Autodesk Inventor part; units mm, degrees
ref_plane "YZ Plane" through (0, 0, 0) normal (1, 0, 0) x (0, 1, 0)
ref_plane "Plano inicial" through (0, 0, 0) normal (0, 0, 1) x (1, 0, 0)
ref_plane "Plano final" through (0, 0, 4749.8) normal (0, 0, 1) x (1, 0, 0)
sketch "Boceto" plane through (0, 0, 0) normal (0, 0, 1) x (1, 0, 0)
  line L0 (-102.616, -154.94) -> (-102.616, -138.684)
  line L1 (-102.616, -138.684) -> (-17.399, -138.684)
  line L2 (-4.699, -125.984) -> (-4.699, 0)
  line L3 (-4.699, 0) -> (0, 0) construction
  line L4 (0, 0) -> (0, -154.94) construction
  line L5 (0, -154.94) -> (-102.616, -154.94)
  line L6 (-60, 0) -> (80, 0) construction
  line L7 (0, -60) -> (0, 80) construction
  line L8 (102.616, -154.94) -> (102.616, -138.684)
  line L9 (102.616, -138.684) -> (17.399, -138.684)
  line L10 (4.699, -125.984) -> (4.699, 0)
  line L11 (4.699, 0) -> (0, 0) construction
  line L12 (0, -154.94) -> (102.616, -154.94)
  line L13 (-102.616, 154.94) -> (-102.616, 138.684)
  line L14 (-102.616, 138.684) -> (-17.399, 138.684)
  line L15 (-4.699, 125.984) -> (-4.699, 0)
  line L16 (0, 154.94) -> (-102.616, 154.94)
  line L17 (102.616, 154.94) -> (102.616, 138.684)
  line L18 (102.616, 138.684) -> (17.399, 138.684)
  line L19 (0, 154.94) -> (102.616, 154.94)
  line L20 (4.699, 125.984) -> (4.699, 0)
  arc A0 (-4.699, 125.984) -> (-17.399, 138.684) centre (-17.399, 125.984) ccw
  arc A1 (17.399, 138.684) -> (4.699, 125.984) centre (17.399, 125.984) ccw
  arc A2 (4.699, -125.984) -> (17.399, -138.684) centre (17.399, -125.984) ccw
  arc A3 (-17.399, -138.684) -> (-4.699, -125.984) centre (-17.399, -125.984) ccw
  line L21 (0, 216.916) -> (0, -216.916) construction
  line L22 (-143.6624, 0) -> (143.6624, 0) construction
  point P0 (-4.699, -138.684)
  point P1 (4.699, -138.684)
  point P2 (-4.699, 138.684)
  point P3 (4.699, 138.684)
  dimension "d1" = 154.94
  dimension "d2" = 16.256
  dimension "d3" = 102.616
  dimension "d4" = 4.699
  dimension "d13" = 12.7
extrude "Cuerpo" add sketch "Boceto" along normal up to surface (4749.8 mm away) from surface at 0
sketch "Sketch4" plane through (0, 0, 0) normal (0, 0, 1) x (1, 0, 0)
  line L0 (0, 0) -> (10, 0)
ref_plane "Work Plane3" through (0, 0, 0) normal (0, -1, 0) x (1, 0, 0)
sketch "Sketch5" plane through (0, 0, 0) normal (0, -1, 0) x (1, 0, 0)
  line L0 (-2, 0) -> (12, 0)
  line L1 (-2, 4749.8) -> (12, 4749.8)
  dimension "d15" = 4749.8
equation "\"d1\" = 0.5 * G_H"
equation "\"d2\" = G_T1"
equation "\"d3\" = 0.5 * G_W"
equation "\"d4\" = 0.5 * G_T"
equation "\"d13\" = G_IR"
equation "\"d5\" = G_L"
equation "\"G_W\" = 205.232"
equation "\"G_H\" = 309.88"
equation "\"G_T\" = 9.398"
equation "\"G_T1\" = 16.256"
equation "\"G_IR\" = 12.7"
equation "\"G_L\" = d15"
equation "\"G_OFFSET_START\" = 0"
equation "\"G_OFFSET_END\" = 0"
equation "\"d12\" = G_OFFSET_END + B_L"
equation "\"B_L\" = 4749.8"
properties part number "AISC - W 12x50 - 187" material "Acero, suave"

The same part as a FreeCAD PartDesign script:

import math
import FreeCAD as App
import Part
import Sketcher
from FreeCAD import Vector
Q = App.Units.Quantity

doc = App.newDocument("Part")
body = doc.addObject("PartDesign::Body", "Body")

# Sketch on XY plane
sketch1 = body.newObject("Sketcher::SketchObject", "Sketch")
sketch1.AttachmentSupport = (doc.getObject("XY_Plane"), [""])
sketch1.MapMode = "FlatFace"
sketch1.addGeometry([
    Part.LineSegment(Vector(-103, -139, 0), Vector(-103, -155, 0)),  # 0
    Part.LineSegment(Vector(-103, -155, 0), Vector(103, -155, 0)),  # 1
    Part.LineSegment(Vector(103, -155, 0), Vector(103, -139, 0)),  # 2
    Part.LineSegment(Vector(103, -139, 0), Vector(17, -139, 0)),  # 3
    Part.ArcOfCircle(Part.Circle(Vector(17, -126, 0), Vector(0, 0, 1), 13), math.radians(180), math.radians(270)),  # 4
    Part.LineSegment(Vector(5, -126, 0), Vector(5, 126, 0)),  # 5
    Part.ArcOfCircle(Part.Circle(Vector(17, 126, 0), Vector(0, 0, 1), 13), math.radians(90), math.radians(180)),  # 6
    Part.LineSegment(Vector(17, 139, 0), Vector(103, 139, 0)),  # 7
    Part.LineSegment(Vector(103, 139, 0), Vector(103, 155, 0)),  # 8
    Part.LineSegment(Vector(103, 155, 0), Vector(-103, 155, 0)),  # 9
    Part.LineSegment(Vector(-103, 155, 0), Vector(-103, 139, 0)),  # 10
    Part.LineSegment(Vector(-103, 139, 0), Vector(-17, 139, 0)),  # 11
    Part.ArcOfCircle(Part.Circle(Vector(-17, 126, 0), Vector(0, 0, 1), 13), math.radians(0), math.radians(90)),  # 12
    Part.LineSegment(Vector(-5, 126, 0), Vector(-5, -126, 0)),  # 13
    Part.ArcOfCircle(Part.Circle(Vector(-17, -126, 0), Vector(0, 0, 1), 13), math.radians(-90), math.radians(0)),  # 14
    Part.LineSegment(Vector(-17, -139, 0), Vector(-103, -139, 0)),  # 15
], False)
sketch1.addConstraint([
    Sketcher.Constraint("Coincident", 0, 2, 1, 1),
    Sketcher.Constraint("Coincident", 1, 2, 2, 1),
    Sketcher.Constraint("Coincident", 2, 2, 3, 1),
    Sketcher.Constraint("Tangent", 3, 2, 4, 2),
    Sketcher.Constraint("Tangent", 4, 1, 5, 1),
    Sketcher.Constraint("Tangent", 5, 2, 6, 2),
    Sketcher.Constraint("Tangent", 6, 1, 7, 1),
    Sketcher.Constraint("Coincident", 7, 2, 8, 1),
    Sketcher.Constraint("Coincident", 8, 2, 9, 1),
    Sketcher.Constraint("Coincident", 9, 2, 10, 1),
    Sketcher.Constraint("Coincident", 10, 2, 11, 1),
    Sketcher.Constraint("Tangent", 11, 2, 12, 2),
    Sketcher.Constraint("Tangent", 12, 1, 13, 1),
    Sketcher.Constraint("Tangent", 13, 2, 14, 2),
    Sketcher.Constraint("Tangent", 14, 1, 15, 1),
    Sketcher.Constraint("Coincident", 15, 2, 0, 1),
    Sketcher.Constraint("Vertical", 0),
    Sketcher.Constraint("Horizontal", 1),
    Sketcher.Constraint("Vertical", 2),
    Sketcher.Constraint("Horizontal", 3),
    Sketcher.Constraint("Vertical", 5),
    Sketcher.Constraint("Horizontal", 7),
    Sketcher.Constraint("Vertical", 8),
    Sketcher.Constraint("Horizontal", 9),
    Sketcher.Constraint("Vertical", 10),
    Sketcher.Constraint("Horizontal", 11),
    Sketcher.Constraint("Vertical", 13),
    Sketcher.Constraint("Horizontal", 15),
    Sketcher.Constraint("Equal", 4, 6),
    Sketcher.Constraint("Equal", 6, 12),
    Sketcher.Constraint("Equal", 12, 14),
    Sketcher.Constraint("Symmetric", 4, 3, 12, 3, -1, 1),
    Sketcher.Constraint("Symmetric", 0, 2, 8, 2, -1, 1),
    Sketcher.Constraint("Symmetric", 7, 2, 10, 2, -2),
    Sketcher.Constraint("Symmetric", 2, 2, 15, 2, -2),
    Sketcher.Constraint("Radius", 4, Q("0.5 in")),
    Sketcher.Constraint("DistanceY", 0, 2, 0, 1, Q("0.64 in")),
    Sketcher.Constraint("DistanceY", 0, 2, -1, 1, Q("6.1 in")),
    Sketcher.Constraint("DistanceX", 0, 2, -1, 1, Q("4.04 in")),
    Sketcher.Constraint("DistanceX", -1, 1, 4, 1, Q("0.185 in")),
])
pad1 = body.newObject("PartDesign::Pad", "Pad")
pad1.Profile = sketch1
pad1.Length = Q("187 in")

doc.recompute()
